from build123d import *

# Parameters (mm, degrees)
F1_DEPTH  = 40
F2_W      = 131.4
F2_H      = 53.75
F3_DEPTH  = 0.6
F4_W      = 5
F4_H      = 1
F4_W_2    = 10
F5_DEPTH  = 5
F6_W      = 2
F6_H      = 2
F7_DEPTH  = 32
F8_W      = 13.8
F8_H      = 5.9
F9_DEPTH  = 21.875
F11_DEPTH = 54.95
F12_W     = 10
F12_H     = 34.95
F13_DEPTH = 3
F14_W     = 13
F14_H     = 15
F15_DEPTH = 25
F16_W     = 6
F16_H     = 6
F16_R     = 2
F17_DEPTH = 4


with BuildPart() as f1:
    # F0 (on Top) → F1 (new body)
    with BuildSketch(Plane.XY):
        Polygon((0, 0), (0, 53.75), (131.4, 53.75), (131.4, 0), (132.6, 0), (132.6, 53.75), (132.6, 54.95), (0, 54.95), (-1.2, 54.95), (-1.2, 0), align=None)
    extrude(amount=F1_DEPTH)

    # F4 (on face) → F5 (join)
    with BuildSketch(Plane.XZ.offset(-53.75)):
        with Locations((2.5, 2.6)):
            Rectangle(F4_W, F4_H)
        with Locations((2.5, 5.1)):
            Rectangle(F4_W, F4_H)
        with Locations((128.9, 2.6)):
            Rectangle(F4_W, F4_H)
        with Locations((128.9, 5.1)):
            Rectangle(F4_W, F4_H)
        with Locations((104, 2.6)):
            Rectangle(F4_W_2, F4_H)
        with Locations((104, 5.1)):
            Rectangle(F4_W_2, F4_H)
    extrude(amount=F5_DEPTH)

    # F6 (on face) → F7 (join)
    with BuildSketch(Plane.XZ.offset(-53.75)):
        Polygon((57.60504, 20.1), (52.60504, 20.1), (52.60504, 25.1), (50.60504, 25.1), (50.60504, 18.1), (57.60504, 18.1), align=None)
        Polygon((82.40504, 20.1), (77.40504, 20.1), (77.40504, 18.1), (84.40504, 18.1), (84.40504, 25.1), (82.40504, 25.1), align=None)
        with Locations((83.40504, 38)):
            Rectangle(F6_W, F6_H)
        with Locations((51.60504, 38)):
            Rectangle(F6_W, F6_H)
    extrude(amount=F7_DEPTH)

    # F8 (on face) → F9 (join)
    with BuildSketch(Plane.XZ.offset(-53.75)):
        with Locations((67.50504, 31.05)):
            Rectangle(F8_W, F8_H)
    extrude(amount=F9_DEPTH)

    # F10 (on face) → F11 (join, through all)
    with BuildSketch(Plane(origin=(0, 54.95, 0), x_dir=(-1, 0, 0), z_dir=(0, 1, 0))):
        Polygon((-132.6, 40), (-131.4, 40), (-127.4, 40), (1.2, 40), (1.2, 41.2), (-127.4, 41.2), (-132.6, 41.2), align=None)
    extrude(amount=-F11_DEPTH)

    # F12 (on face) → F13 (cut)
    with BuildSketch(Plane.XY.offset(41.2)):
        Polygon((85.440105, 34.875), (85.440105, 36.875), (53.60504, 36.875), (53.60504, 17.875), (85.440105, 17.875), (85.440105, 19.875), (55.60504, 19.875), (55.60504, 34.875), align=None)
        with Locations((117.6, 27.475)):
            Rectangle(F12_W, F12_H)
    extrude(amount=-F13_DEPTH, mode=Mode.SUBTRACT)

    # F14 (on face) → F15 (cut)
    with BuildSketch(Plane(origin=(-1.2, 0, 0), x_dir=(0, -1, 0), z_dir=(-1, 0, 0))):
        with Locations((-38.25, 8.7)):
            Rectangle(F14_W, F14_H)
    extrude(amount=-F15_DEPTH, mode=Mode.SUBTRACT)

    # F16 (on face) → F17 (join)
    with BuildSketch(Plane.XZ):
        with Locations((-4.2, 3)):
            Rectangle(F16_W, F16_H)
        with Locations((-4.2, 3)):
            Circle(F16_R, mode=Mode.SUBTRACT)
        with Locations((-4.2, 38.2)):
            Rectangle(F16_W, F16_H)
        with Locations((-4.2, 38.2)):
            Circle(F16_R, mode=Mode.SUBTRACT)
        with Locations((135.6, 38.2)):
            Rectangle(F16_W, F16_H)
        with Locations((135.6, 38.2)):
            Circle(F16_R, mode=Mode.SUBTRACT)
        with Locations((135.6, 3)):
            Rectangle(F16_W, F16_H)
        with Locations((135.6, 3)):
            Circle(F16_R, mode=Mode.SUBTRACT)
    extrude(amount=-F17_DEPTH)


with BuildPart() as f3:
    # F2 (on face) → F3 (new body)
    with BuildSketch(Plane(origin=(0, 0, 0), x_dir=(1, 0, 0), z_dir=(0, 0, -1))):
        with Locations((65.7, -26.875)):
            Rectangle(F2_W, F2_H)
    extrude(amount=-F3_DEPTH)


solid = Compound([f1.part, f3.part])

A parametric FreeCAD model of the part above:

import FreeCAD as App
import Part
import Sketcher

V = App.Vector


def add_polygon(sketch, points):
    """Adds a closed chain of lines whose ends are joined by coincident constraints."""
    first, n = sketch.GeometryCount, len(points)
    for a, b in zip(points, points[1:] + points[:1]):
        sketch.addGeometry(Part.LineSegment(App.Vector(*a, 0), App.Vector(*b, 0)), False)
    for i in range(n):
        sketch.addConstraint(Sketcher.Constraint("Coincident", first + i, 2, first + (i + 1) % n, 1))

doc = App.newDocument("Part")
body = doc.addObject("PartDesign::Body", "Body")

sketch1 = body.newObject("Sketcher::SketchObject", "Sketch")
sketch1.AttachmentSupport = (doc.getObject("XY_Plane"), [""])
sketch1.MapMode = "FlatFace"
add_polygon(sketch1, [(0, 0), (0, 53.8), (131.4, 53.8), (131.4, 0), (132.6, 0), (132.6, 55), (-1.2, 55), (-1.2, 0)])
sketch1.addConstraint([
    Sketcher.Constraint("Vertical", 0),
    Sketcher.Constraint("Horizontal", 1),
    Sketcher.Constraint("Vertical", 2),
    Sketcher.Constraint("Horizontal", 3),
    Sketcher.Constraint("Vertical", 4),
    Sketcher.Constraint("Horizontal", 5),
    Sketcher.Constraint("Vertical", 6),
    Sketcher.Constraint("Horizontal", 7),
    Sketcher.Constraint("Coincident", 7, 2, -1, 1),
    Sketcher.Constraint("PointOnObject", 2, 2, -1),
    Sketcher.Constraint("Equal", 3, 7),
    Sketcher.Constraint("DistanceX", 1, 1, 1, 2, 131.4),
    Sketcher.Constraint("DistanceX", 3, 1, 3, 2, 1.2),
    Sketcher.Constraint("DistanceY", 0, 1, 0, 2, 53.75),
    Sketcher.Constraint("DistanceY", 4, 1, 4, 2, 54.95),
])
pad1 = body.newObject("PartDesign::Pad", "Pad")
pad1.Profile = sketch1
pad1.Length = 40

sketch2 = body.newObject("Sketcher::SketchObject", "Sketch001")
sketch2.AttachmentSupport = (doc.getObject("XZ_Plane"), [""])
sketch2.MapMode = "FlatFace"
sketch2.AttachmentOffset = App.Placement(V(0, 0, -53.75), App.Rotation())
add_polygon(sketch2, [(0, 3.1), (0, 2.1), (5, 2.1), (5, 3.1)])
add_polygon(sketch2, [(0, 5.6), (0, 4.6), (5, 4.6), (5, 5.6)])
add_polygon(sketch2, [(126.4, 3.1), (126.4, 2.1), (131.4, 2.1), (131.4, 3.1)])
add_polygon(sketch2, [(126.4, 5.6), (126.4, 4.6), (131.4, 4.6), (131.4, 5.6)])
add_polygon(sketch2, [(99, 3.1), (99, 2.1), (109, 2.1), (109, 3.1)])
add_polygon(sketch2, [(99, 5.6), (99, 4.6), (109, 4.6), (109, 5.6)])
sketch2.addConstraint([
    Sketcher.Constraint("Vertical", 0),
    Sketcher.Constraint("Horizontal", 1),
    Sketcher.Constraint("Vertical", 2),
    Sketcher.Constraint("Horizontal", 3),
    Sketcher.Constraint("Vertical", 4),
    Sketcher.Constraint("Horizontal", 5),
    Sketcher.Constraint("Vertical", 6),
    Sketcher.Constraint("Horizontal", 7),
    Sketcher.Constraint("Vertical", 8),
    Sketcher.Constraint("Horizontal", 9),
    Sketcher.Constraint("Vertical", 10),
    Sketcher.Constraint("Horizontal", 11),
    Sketcher.Constraint("Vertical", 12),
    Sketcher.Constraint("Horizontal", 13),
    Sketcher.Constraint("Vertical", 14),
    Sketcher.Constraint("Horizontal", 15),
    Sketcher.Constraint("Vertical", 16),
    Sketcher.Constraint("Horizontal", 17),
    Sketcher.Constraint("Vertical", 18),
    Sketcher.Constraint("Horizontal", 19),
    Sketcher.Constraint("Vertical", 20),
    Sketcher.Constraint("Horizontal", 21),
    Sketcher.Constraint("Vertical", 22),
    Sketcher.Constraint("Horizontal", 23),
    Sketcher.Constraint("PointOnObject", 0, 2, -2),
    Sketcher.Constraint("PointOnObject", 4, 2, -2),
    Sketcher.Constraint("Horizontal", 1, 2, 8, 2),
    Sketcher.Constraint("Horizontal", 3, 2, 10, 2),
    Sketcher.Constraint("Horizontal", 5, 2, 12, 2),
    Sketcher.Constraint("Horizontal", 7, 2, 14, 2),
    Sketcher.Constraint("Horizontal", 9, 2, 16, 2),
    Sketcher.Constraint("Horizontal", 11, 2, 18, 2),
    Sketcher.Constraint("Horizontal", 13, 2, 20, 2),
    Sketcher.Constraint("Horizontal", 15, 2, 22, 2),
    Sketcher.Constraint("Vertical", 2, 2, 5, 2),
    Sketcher.Constraint("Vertical", 11, 2, 12, 2),
    Sketcher.Constraint("Vertical", 10, 2, 13, 2),
    Sketcher.Constraint("Vertical", 19, 2, 20, 2),
    Sketcher.Constraint("Vertical", 18, 2, 21, 2),
    Sketcher.Constraint("Equal", 7, 9),
    Sketcher.Constraint("Equal", 2, 4),
    Sketcher.Constraint("DistanceX", 1, 1, 1, 2, 5.0),
    Sketcher.Constraint("DistanceX", 17, 1, 17, 2, 10.0),
    Sketcher.Constraint("DistanceY", 0, 2, 0, 1, 1.0),
    Sketcher.Constraint("DistanceX", -1, 1, 16, 2, 99.0),
    Sketcher.Constraint("DistanceY", -1, 1, 0, 2, 2.1),
    Sketcher.Constraint("DistanceY", -1, 1, 4, 2, 4.6),
    Sketcher.Constraint("DistanceX", -1, 1, 8, 2, 126.4),
])
pad2 = body.newObject("PartDesign::Pad", "Pad001")
pad2.Profile = sketch2
pad2.Length = 5

sketch3 = body.newObject("Sketcher::SketchObject", "Sketch002")
sketch3.AttachmentSupport = (doc.getObject("XZ_Plane"), [""])
sketch3.MapMode = "FlatFace"
sketch3.AttachmentOffset = App.Placement(V(0, 0, -53.75), App.Rotation())
add_polygon(sketch3, [(57.6, 20.1), (52.6, 20.1), (52.6, 25.1), (50.6, 25.1), (50.6, 18.1), (57.6, 18.1)])
add_polygon(sketch3, [(82.4, 20.1), (77.4, 20.1), (77.4, 18.1), (84.4, 18.1), (84.4, 25.1), (82.4, 25.1)])
add_polygon(sketch3, [(82.4, 39), (82.4, 37), (84.4, 37), (84.4, 39)])
add_polygon(sketch3, [(50.6, 39), (50.6, 37), (52.6, 37), (52.6, 39)])
sketch3.addConstraint([
    Sketcher.Constraint("Horizontal", 0),
    Sketcher.Constraint("Vertical", 1),
    Sketcher.Constraint("Horizontal", 2),
    Sketcher.Constraint("Vertical", 3),
    Sketcher.Constraint("Horizontal", 4),
    Sketcher.Constraint("Vertical", 5),
    Sketcher.Constraint("Horizontal", 6),
    Sketcher.Constraint("Vertical", 7),
    Sketcher.Constraint("Horizontal", 8),
    Sketcher.Constraint("Vertical", 9),
    Sketcher.Constraint("Horizontal", 10),
    Sketcher.Constraint("Vertical", 11),
    Sketcher.Constraint("Vertical", 12),
    Sketcher.Constraint("Horizontal", 13),
    Sketcher.Constraint("Vertical", 14),
    Sketcher.Constraint("Horizontal", 15),
    Sketcher.Constraint("Vertical", 16),
    Sketcher.Constraint("Horizontal", 17),
    Sketcher.Constraint("Vertical", 18),
    Sketcher.Constraint("Horizontal", 19),
    Sketcher.Constraint("Horizontal", 5, 2, 6, 2),
    Sketcher.Constraint("Horizontal", 4, 2, 7, 2),
    Sketcher.Constraint("Horizontal", 2, 2, 9, 2),
    Sketcher.Constraint("Horizontal", 13, 2, 16, 2),
    Sketcher.Constraint("Horizontal", 15, 2, 18, 2),
    Sketcher.Constraint("Vertical", 11, 2, 12, 2),
    Sketcher.Constraint("Vertical", 9, 2, 13, 2),
    Sketcher.Constraint("Vertical", 3, 2, 16, 2),
    Sketcher.Constraint("Vertical", 1, 2, 17, 2),
    Sketcher.Constraint("Equal", 0, 6),
    Sketcher.Constraint("Equal", 4, 8),
    Sketcher.Constraint("Equal", 6, 1),
    Sketcher.Constraint("Equal", 8, 3),
    Sketcher.Constraint("Equal", 7, 12),
    Sketcher.Constraint("DistanceX", 0, 2, 0, 1, 5.0),
    Sketcher.Constraint("DistanceX", 2, 2, 2, 1, 2.0),
    Sketcher.Constraint("DistanceY", -1, 1, 12, 2, 37.0),
    Sketcher.Constraint("DistanceY", -1, 1, 0, 2, 20.1),
    Sketcher.Constraint("DistanceX", 5, 2, 6, 2, 19.8),
    Sketcher.Constraint("DistanceX", -1, 1, 0, 2, 52.60504),
])
pad3 = body.newObject("PartDesign::Pad", "Pad002")
pad3.Profile = sketch3
pad3.Length = 32

sketch4 = body.newObject("Sketcher::SketchObject", "Sketch003")
sketch4.AttachmentSupport = (doc.getObject("XZ_Plane"), [""])
sketch4.MapMode = "FlatFace"
sketch4.AttachmentOffset = App.Placement(V(0, 0, -53.75), App.Rotation())
add_polygon(sketch4, [(61, 34), (61, 28), (74, 28), (74, 34)])
sketch4.addConstraint([
    Sketcher.Constraint("Vertical", 0),
    Sketcher.Constraint("Horizontal", 1),
    Sketcher.Constraint("Vertical", 2),
    Sketcher.Constraint("Horizontal", 3),
    Sketcher.Constraint("DistanceX", 1, 1, 1, 2, 13.8),
    Sketcher.Constraint("DistanceY", 0, 2, 0, 1, 5.9),
    Sketcher.Constraint("DistanceY", -1, 1, 2, 2, 34.0),
    Sketcher.Constraint("DistanceX", -1, 1, 0, 2, 60.60504),
])
pad4 = body.newObject("PartDesign::Pad", "Pad003")
pad4.Profile = sketch4
pad4.Length = 21.875

sketch5 = body.newObject("Sketcher::SketchObject", "Sketch004")
sketch5.AttachmentSupport = (doc.getObject("XZ_Plane"), [""])
sketch5.MapMode = "FlatFace"
sketch5.AttachmentOffset = App.Placement(V(0, 0, -54.95), App.Rotation())
add_polygon(sketch5, [(132.6, 40), (-1.2, 40), (-1.2, 41.2), (132.6, 41.2)])
sketch5.addConstraint([
    Sketcher.Constraint("Horizontal", 0),
    Sketcher.Constraint("Vertical", 1),
    Sketcher.Constraint("Horizontal", 2),
    Sketcher.Constraint("Vertical", 3),
    Sketcher.Constraint("DistanceX", 0, 2, 0, 1, 133.8),
    Sketcher.Constraint("DistanceY", 1, 1, 1, 2, 1.2),
    Sketcher.Constraint("DistanceY", -1, 1, 0, 2, 40.0),
    Sketcher.Constraint("DistanceX", 0, 2, -1, 1, 1.2),
])
pad5 = body.newObject("PartDesign::Pad", "Pad004")
pad5.Profile = sketch5
pad5.Length = 54.95

sketch6 = body.newObject("Sketcher::SketchObject", "Sketch005")
sketch6.AttachmentSupport = (doc.getObject("XY_Plane"), [""])
sketch6.MapMode = "FlatFace"
sketch6.AttachmentOffset = App.Placement(V(0, 0, 41.2), App.Rotation())
add_polygon(sketch6, [(85.4, 34.9), (85.4, 36.9), (53.6, 36.9), (53.6, 17.9), (85.4, 17.9), (85.4, 19.9), (55.6, 19.9), (55.6, 34.9)])
add_polygon(sketch6, [(112.6, 45), (112.6, 10), (122.6, 10), (122.6, 45)])
sketch6.addConstraint([
    Sketcher.Constraint("Vertical", 0),
    Sketcher.Constraint("Horizontal", 1),
    Sketcher.Constraint("Vertical", 2),
    Sketcher.Constraint("Horizontal", 3),
    Sketcher.Constraint("Vertical", 4),
    Sketcher.Constraint("Horizontal", 5),
    Sketcher.Constraint("Vertical", 6),
    Sketcher.Constraint("Horizontal", 7),
    Sketcher.Constraint("Vertical", 8),
    Sketcher.Constraint("Horizontal", 9),
    Sketcher.Constraint("Vertical", 10),
    Sketcher.Constraint("Horizontal", 11),
    Sketcher.Constraint("Vertical", 0, 2, 3, 2),
    Sketcher.Constraint("Equal", 0, 4),
    Sketcher.Constraint("DistanceX", 9, 1, 9, 2, 10.0),
    Sketcher.Constraint("DistanceY", 0, 1, 0, 2, 2.0),
    Sketcher.Constraint("DistanceY", 2, 2, 2, 1, 19.0),
    Sketcher.Constraint("DistanceY", -1, 1, 8, 2, 10.0),
    Sketcher.Constraint("DistanceX", 2, 2, 5, 2, 2.0),
    Sketcher.Constraint("DistanceY", 8, 2, 8, 1, 34.95),
    Sketcher.Constraint("DistanceX", -1, 1, 8, 2, 112.6),
    Sketcher.Constraint("DistanceY", -1, 1, 0, 2, 36.875),
    Sketcher.Constraint("DistanceX", 1, 2, 1, 1, 31.835065),
    Sketcher.Constraint("DistanceX", -1, 1, 1, 2, 53.60504),
])
pocket1 = body.newObject("PartDesign::Pocket", "Pocket")
pocket1.Profile = sketch6
pocket1.Length = 3

sketch7 = body.newObject("Sketcher::SketchObject", "Sketch006")
sketch7.AttachmentSupport = (doc.getObject("YZ_Plane"), [""])
sketch7.MapMode = "FlatFace"
sketch7.AttachmentOffset = App.Placement(V(0, 0, -1.2), App.Rotation())
add_polygon(sketch7, [(45, 16), (45, 1), (32, 1), (32, 16)])
sketch7.addConstraint([
    Sketcher.Constraint("Vertical", 0),
    Sketcher.Constraint("Horizontal", 1),
    Sketcher.Constraint("Vertical", 2),
    Sketcher.Constraint("Horizontal", 3),
    Sketcher.Constraint("DistanceX", 1, 2, 1, 1, 13.0),
    Sketcher.Constraint("DistanceY", 0, 2, 0, 1, 15.0),
    Sketcher.Constraint("DistanceY", -1, 1, 0, 2, 1.2),
    Sketcher.Constraint("DistanceX", -1, 1, 0, 2, 44.75),
])
pocket2 = body.newObject("PartDesign::Pocket", "Pocket001")
pocket2.Profile = sketch7
pocket2.Length = 25
pocket2.Reversed = True

sketch8 = body.newObject("Sketcher::SketchObject", "Sketch007")
sketch8.AttachmentSupport = (doc.getObject("XZ_Plane"), [""])
sketch8.MapMode = "FlatFace"
add_polygon(sketch8, [(-7.2, 6), (-7.2, 0), (-1.2, 0), (-1.2, 6)])
sketch8.addGeometry(Part.Circle(V(-4.2, 3, 0), V(0, 0, 1), 2), False)
add_polygon(sketch8, [(-7.2, 41.2), (-7.2, 35.2), (-1.2, 35.2), (-1.2, 41.2)])
sketch8.addGeometry(Part.Circle(V(-4.2, 38.2, 0), V(0, 0, 1), 2), False)
add_polygon(sketch8, [(132.6, 41.2), (132.6, 35.2), (138.6, 35.2), (138.6, 41.2)])
sketch8.addGeometry(Part.Circle(V(135.6, 38.2, 0), V(0, 0, 1), 2), False)
add_polygon(sketch8, [(132.6, 6), (132.6, 0), (138.6, 0), (138.6, 6)])
sketch8.addGeometry(Part.Circle(V(135.6, 3, 0), V(0, 0, 1), 2), False)
sketch8.addConstraint([
    Sketcher.Constraint("Vertical", 0),
    Sketcher.Constraint("Horizontal", 1),
    Sketcher.Constraint("Vertical", 2),
    Sketcher.Constraint("Horizontal", 3),
    Sketcher.Constraint("Vertical", 5),
    Sketcher.Constraint("Horizontal", 6),
    Sketcher.Constraint("Vertical", 7),
    Sketcher.Constraint("Horizontal", 8),
    Sketcher.Constraint("Vertical", 10),
    Sketcher.Constraint("Horizontal", 11),
    Sketcher.Constraint("Vertical", 12),
    Sketcher.Constraint("Horizontal", 13),
    Sketcher.Constraint("Vertical", 15),
    Sketcher.Constraint("Horizontal", 16),
    Sketcher.Constraint("Vertical", 17),
    Sketcher.Constraint("Horizontal", 18),
    Sketcher.Constraint("Equal", 4, 9),
    Sketcher.Constraint("Equal", 9, 14),
    Sketcher.Constraint("Equal", 14, 19),
    Sketcher.Constraint("PointOnObject", 0, 2, -1),
    Sketcher.Constraint("PointOnObject", 15, 2, -1),
    Sketcher.Constraint("Horizontal", 9, 3, 14, 3),
    Sketcher.Constraint("Horizontal", 4, 3, 19, 3),
    Sketcher.Constraint("Horizontal", 6, 2, 10, 2),
    Sketcher.Constraint("Horizontal", 8, 2, 12, 2),
    Sketcher.Constraint("Horizontal", 3, 2, 17, 2),
    Sketcher.Constraint("Vertical", 4, 3, 9, 3),
    Sketcher.Constraint("Vertical", 14, 3, 19, 3),
    Sketcher.Constraint("Vertical", 3, 2, 5, 2),
    Sketcher.Constraint("Vertical", 2, 2, 6, 2),
    Sketcher.Constraint("Vertical", 13, 2, 15, 2),
    Sketcher.Constraint("Vertical", 12, 2, 16, 2),
    Sketcher.Constraint("Equal", 8, 11),
    Sketcher.Constraint("Equal", 18, 0),
    Sketcher.Constraint("Equal", 2, 5),
    Sketcher.Constraint("Diameter", 4, 4.0),
    Sketcher.Constraint("DistanceX", 1, 1, 1, 2, 6.0),
    Sketcher.Constraint("DistanceY", -1, 1, 4, 3, 3.0),
    Sketcher.Constraint("DistanceX", 0, 2, 4, 3, 3.0),
    Sketcher.Constraint("DistanceY", 5, 2, 9, 3, 3.0),
    Sketcher.Constraint("DistanceX", 10, 2, 14, 3, 3.0),
    Sketcher.Constraint("DistanceX", 4, 3, -1, 1, 4.2),
    Sketcher.Constraint("DistanceY", -1, 1, 9, 3, 38.2),
    Sketcher.Constraint("DistanceX", -1, 1, 14, 3, 135.6),
])
pad6 = body.newObject("PartDesign::Pad", "Pad005")
pad6.Profile = sketch8
pad6.Length = 4
pad6.Reversed = True
body2 = doc.addObject("PartDesign::Body", "Body001")

sketch9 = body2.newObject("Sketcher::SketchObject", "Sketch008")
sketch9.AttachmentSupport = (doc.getObject("XY_Plane001"), [""])
sketch9.MapMode = "FlatFace"
add_polygon(sketch9, [(0, 0), (0, 54), (131, 54), (131, 0)])
sketch9.addConstraint([
    Sketcher.Constraint("Vertical", 0),
    Sketcher.Constraint("Horizontal", 1),
    Sketcher.Constraint("Vertical", 2),
    Sketcher.Constraint("Horizontal", 3),
    Sketcher.Constraint("Coincident", 3, 2, -1, 1),
    Sketcher.Constraint("DistanceX", 1, 1, 1, 2, 131.4),
    Sketcher.Constraint("DistanceY", 0, 1, 0, 2, 53.75),
])
pad7 = body2.newObject("PartDesign::Pad", "Pad006")
pad7.Profile = sketch9
pad7.Length = 0.6

doc.recompute()
